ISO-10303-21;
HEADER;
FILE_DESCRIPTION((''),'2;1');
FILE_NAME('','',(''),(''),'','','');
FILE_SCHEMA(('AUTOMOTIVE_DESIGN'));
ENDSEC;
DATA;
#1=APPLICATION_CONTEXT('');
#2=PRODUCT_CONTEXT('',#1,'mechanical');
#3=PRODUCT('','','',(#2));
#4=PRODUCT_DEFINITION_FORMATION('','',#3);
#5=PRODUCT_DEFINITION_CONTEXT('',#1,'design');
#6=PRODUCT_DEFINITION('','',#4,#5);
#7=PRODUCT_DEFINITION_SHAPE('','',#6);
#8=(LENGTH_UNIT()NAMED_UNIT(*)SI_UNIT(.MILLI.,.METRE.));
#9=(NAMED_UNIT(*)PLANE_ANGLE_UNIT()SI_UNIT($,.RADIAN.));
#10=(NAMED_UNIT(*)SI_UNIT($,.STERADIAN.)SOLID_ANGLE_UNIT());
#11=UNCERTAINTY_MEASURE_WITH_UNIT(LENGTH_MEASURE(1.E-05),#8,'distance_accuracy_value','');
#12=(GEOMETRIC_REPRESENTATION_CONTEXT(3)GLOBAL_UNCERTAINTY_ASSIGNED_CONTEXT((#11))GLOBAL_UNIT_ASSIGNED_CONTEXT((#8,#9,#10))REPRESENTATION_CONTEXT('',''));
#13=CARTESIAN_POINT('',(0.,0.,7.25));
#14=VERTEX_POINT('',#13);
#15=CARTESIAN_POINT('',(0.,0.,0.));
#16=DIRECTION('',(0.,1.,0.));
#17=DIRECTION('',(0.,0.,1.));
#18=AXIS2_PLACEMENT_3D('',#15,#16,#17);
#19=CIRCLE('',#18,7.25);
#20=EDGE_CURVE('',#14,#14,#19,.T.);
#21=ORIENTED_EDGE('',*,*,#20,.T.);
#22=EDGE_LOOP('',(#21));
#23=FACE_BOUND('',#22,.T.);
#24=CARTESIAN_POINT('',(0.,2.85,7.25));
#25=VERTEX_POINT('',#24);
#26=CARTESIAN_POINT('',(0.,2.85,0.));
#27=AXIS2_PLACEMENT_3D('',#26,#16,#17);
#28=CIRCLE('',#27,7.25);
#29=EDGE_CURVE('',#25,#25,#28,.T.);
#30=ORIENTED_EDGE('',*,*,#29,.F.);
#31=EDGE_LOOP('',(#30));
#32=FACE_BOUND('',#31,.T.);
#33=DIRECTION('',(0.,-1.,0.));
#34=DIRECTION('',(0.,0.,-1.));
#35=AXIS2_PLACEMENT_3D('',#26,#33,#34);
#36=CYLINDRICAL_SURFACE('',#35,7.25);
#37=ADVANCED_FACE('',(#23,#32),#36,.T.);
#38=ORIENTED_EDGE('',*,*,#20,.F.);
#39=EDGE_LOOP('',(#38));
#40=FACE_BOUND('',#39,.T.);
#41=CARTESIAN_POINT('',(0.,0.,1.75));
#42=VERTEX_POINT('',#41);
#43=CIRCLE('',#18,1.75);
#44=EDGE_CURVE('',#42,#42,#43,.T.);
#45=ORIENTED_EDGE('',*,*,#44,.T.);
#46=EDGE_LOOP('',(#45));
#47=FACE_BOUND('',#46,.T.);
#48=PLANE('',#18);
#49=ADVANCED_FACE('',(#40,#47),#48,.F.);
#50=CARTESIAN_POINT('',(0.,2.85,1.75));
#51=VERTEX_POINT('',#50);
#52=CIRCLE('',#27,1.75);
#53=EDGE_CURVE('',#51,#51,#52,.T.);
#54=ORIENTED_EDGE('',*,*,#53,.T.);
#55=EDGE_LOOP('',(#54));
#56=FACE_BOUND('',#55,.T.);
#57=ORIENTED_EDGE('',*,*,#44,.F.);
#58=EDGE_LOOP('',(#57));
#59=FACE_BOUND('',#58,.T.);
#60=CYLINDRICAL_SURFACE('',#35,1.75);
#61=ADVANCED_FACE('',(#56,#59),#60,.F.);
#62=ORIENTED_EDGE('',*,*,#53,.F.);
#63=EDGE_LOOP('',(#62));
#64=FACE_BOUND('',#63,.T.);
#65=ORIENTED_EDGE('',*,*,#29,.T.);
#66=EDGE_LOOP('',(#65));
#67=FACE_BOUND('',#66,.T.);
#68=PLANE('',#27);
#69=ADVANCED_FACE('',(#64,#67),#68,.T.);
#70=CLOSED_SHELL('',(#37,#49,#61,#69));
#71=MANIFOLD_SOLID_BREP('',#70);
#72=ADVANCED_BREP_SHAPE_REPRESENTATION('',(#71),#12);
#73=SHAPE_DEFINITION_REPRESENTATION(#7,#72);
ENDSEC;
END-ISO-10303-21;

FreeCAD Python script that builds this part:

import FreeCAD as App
import Part
import Sketcher
from FreeCAD import Vector
Q = App.Units.Quantity

doc = App.newDocument("Part")
body = doc.addObject("PartDesign::Body", "Body")

# Sketch on XZ plane
sketch1 = body.newObject("Sketcher::SketchObject", "Sketch")
sketch1.AttachmentSupport = (doc.getObject("XZ_Plane"), [""])
sketch1.MapMode = "FlatFace"
sketch1.addGeometry(Part.Circle(Vector(0, 0, 0), Vector(0, 0, 1), 7.25), False)
sketch1.addGeometry(Part.Circle(Vector(0, 0, 0), Vector(0, 0, 1), 1.75), False)
sketch1.addConstraint(Sketcher.Constraint("Coincident", 0, 3, -1, 1))
sketch1.addConstraint(Sketcher.Constraint("Coincident", 1, 3, -1, 1))
sketch1.addConstraint(Sketcher.Constraint("Diameter", 0, Q("14.5 mm")))
sketch1.addConstraint(Sketcher.Constraint("Diameter", 1, Q("3.5 mm")))
pad1 = body.newObject("PartDesign::Pad", "Pad")
pad1.Profile = sketch1
pad1.Length = 2.85
pad1.Reversed = True

doc.recompute()
